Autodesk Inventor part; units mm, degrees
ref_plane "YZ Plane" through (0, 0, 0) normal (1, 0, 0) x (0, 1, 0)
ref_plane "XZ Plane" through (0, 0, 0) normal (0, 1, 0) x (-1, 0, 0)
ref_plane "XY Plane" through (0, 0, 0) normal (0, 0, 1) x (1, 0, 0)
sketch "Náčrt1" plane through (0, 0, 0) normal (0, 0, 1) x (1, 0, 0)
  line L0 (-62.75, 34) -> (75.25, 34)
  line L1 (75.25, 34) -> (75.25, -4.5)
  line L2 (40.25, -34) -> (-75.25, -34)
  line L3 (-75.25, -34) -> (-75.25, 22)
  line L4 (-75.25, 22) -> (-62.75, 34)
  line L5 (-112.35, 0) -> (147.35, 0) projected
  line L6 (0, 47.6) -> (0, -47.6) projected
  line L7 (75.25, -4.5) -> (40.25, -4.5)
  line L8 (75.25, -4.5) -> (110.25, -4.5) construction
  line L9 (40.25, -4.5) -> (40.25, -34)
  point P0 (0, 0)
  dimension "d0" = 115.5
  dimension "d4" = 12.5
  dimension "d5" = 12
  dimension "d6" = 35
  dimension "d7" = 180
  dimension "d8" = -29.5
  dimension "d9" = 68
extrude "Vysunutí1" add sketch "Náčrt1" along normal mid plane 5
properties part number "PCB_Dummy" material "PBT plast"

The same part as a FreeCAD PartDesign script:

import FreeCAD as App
import Part
import Sketcher

V = App.Vector


def add_polygon(sketch, points):
    """Adds a closed chain of lines whose ends are joined by coincident constraints."""
    first, n = sketch.GeometryCount, len(points)
    for a, b in zip(points, points[1:] + points[:1]):
        sketch.addGeometry(Part.LineSegment(App.Vector(*a, 0), App.Vector(*b, 0)), False)
    for i in range(n):
        sketch.addConstraint(Sketcher.Constraint("Coincident", first + i, 2, first + (i + 1) % n, 1))

doc = App.newDocument("Part")
body = doc.addObject("PartDesign::Body", "Body")

sketch1 = body.newObject("Sketcher::SketchObject", "Sketch")
sketch1.AttachmentSupport = (doc.getObject("XY_Plane"), [""])
sketch1.MapMode = "FlatFace"
add_polygon(sketch1, [(-62.75, 34), (-75.25, 22), (-75.25, -34), (40.25, -34), (40.25, -4.5), (75.25, -4.5), (75.25, 34)])
sketch1.addConstraint(Sketcher.Constraint("Vertical", 1))
sketch1.addConstraint(Sketcher.Constraint("Horizontal", 2))
sketch1.addConstraint(Sketcher.Constraint("Vertical", 3))
sketch1.addConstraint(Sketcher.Constraint("Horizontal", 4))
sketch1.addConstraint(Sketcher.Constraint("Vertical", 5))
sketch1.addConstraint(Sketcher.Constraint("Horizontal", 6))
sketch1.addConstraint(Sketcher.Constraint("Symmetric", 1, 2, 5, 2, -1, 1))
sketch1.addConstraint(Sketcher.Constraint("DistanceX", 4, 1, 4, 2, 35.0))
sketch1.addConstraint(Sketcher.Constraint("DistanceX", 2, 1, 2, 2, 115.5))
sketch1.addConstraint(Sketcher.Constraint("DistanceY", 3, 1, 3, 2, 29.5))
sketch1.addConstraint(Sketcher.Constraint("DistanceY", 2, 2, 5, 2, 68.0))
sketch1.addConstraint(Sketcher.Constraint("DistanceY", 0, 2, 5, 2, 12.0))
sketch1.addConstraint(Sketcher.Constraint("DistanceX", 0, 2, 6, 2, 12.5))
pad1 = body.newObject("PartDesign::Pad", "Pad")
pad1.Profile = sketch1
pad1.Length = 5
pad1.Midplane = True

doc.recompute()
